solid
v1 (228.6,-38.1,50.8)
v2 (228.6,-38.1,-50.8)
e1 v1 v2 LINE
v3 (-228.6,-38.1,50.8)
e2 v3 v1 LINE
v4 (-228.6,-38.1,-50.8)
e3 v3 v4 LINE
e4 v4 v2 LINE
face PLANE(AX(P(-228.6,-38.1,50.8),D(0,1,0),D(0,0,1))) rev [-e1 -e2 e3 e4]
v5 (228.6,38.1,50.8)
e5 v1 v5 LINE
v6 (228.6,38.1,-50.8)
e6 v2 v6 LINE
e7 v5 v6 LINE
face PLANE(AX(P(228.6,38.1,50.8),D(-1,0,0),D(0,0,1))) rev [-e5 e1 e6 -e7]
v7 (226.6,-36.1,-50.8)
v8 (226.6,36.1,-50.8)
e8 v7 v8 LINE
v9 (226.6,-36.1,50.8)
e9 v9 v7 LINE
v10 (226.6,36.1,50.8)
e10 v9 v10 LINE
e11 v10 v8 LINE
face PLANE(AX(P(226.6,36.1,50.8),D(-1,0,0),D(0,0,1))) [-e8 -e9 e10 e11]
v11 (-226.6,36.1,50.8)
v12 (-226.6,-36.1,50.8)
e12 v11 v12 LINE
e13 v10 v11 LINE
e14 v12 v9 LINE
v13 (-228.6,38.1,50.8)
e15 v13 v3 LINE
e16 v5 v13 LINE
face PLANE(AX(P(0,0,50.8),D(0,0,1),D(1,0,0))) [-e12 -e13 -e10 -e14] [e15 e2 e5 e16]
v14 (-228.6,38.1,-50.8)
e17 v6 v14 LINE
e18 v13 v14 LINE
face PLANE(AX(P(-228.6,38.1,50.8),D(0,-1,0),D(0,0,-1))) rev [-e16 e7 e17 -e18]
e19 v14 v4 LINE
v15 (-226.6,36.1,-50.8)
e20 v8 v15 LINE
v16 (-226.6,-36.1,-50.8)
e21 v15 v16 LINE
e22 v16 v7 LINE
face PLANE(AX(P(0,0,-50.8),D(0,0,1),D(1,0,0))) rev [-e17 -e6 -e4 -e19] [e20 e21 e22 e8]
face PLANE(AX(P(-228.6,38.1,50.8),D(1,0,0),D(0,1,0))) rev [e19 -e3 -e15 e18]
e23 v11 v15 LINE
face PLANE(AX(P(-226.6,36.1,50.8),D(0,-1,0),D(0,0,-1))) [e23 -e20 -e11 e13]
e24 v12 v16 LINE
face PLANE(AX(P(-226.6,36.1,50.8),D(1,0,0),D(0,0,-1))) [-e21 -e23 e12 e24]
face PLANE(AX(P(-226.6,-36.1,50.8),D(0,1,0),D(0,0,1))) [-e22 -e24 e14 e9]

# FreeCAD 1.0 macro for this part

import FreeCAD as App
import Part
import Sketcher
from FreeCAD import Vector
Q = App.Units.Quantity

doc = App.newDocument("Part")
body = doc.addObject("PartDesign::Body", "Body")

sketch1 = doc.addObject("Sketcher::SketchObject", "Sketch")
body.addObject(sketch1)
sketch1.AttachmentSupport = (doc.XY_Plane, [""])
sketch1.MapMode = "FlatFace"
sketch1.addGeometry(Part.LineSegment(Vector(-229, 38, 0), Vector(-229, -38, 0)), False)
sketch1.addGeometry(Part.LineSegment(Vector(-229, -38, 0), Vector(229, -38, 0)), False)
sketch1.addGeometry(Part.LineSegment(Vector(229, -38, 0), Vector(229, 38, 0)), False)
sketch1.addGeometry(Part.LineSegment(Vector(229, 38, 0), Vector(-229, 38, 0)), False)
sketch1.addGeometry(Part.LineSegment(Vector(227, -36, 0), Vector(-227, -36, 0)), False)
sketch1.addGeometry(Part.LineSegment(Vector(-227, -36, 0), Vector(-227, 36, 0)), False)
sketch1.addGeometry(Part.LineSegment(Vector(-227, 36, 0), Vector(227, 36, 0)), False)
sketch1.addGeometry(Part.LineSegment(Vector(227, 36, 0), Vector(227, -36, 0)), False)
sketch1.addConstraint(Sketcher.Constraint("Coincident", 0, 2, 1, 1))
sketch1.addConstraint(Sketcher.Constraint("Coincident", 1, 2, 2, 1))
sketch1.addConstraint(Sketcher.Constraint("Coincident", 2, 2, 3, 1))
sketch1.addConstraint(Sketcher.Constraint("Coincident", 3, 2, 0, 1))
sketch1.addConstraint(Sketcher.Constraint("Coincident", 4, 2, 5, 1))
sketch1.addConstraint(Sketcher.Constraint("Coincident", 5, 2, 6, 1))
sketch1.addConstraint(Sketcher.Constraint("Coincident", 6, 2, 7, 1))
sketch1.addConstraint(Sketcher.Constraint("Coincident", 7, 2, 4, 1))
sketch1.addConstraint(Sketcher.Constraint("Vertical", 0))
sketch1.addConstraint(Sketcher.Constraint("Horizontal", 1))
sketch1.addConstraint(Sketcher.Constraint("Vertical", 2))
sketch1.addConstraint(Sketcher.Constraint("Horizontal", 3))
sketch1.addConstraint(Sketcher.Constraint("Horizontal", 4))
sketch1.addConstraint(Sketcher.Constraint("Vertical", 5))
sketch1.addConstraint(Sketcher.Constraint("Horizontal", 6))
sketch1.addConstraint(Sketcher.Constraint("Vertical", 7))
sketch1.addConstraint(Sketcher.Constraint("Symmetric", 0, 2, 2, 2, -1, 1))
sketch1.addConstraint(Sketcher.Constraint("Symmetric", 4, 2, 6, 2, -1, 1))
sketch1.addConstraint(Sketcher.Constraint("DistanceX", 1, 1, 1, 2, Q("18 in")))
sketch1.addConstraint(Sketcher.Constraint("DistanceY", 0, 2, 0, 1, Q("3 in")))
sketch1.addConstraint(Sketcher.Constraint("DistanceX", 4, 2, 4, 1, Q("453.2 mm")))
sketch1.addConstraint(Sketcher.Constraint("DistanceY", 5, 1, 5, 2, Q("72.2 mm")))
pad1 = doc.addObject("PartDesign::Pad", "Pad")
body.addObject(pad1)
pad1.Profile = sketch1
pad1.Length = Q("4 in")
pad1.Midplane = True

doc.recompute()
